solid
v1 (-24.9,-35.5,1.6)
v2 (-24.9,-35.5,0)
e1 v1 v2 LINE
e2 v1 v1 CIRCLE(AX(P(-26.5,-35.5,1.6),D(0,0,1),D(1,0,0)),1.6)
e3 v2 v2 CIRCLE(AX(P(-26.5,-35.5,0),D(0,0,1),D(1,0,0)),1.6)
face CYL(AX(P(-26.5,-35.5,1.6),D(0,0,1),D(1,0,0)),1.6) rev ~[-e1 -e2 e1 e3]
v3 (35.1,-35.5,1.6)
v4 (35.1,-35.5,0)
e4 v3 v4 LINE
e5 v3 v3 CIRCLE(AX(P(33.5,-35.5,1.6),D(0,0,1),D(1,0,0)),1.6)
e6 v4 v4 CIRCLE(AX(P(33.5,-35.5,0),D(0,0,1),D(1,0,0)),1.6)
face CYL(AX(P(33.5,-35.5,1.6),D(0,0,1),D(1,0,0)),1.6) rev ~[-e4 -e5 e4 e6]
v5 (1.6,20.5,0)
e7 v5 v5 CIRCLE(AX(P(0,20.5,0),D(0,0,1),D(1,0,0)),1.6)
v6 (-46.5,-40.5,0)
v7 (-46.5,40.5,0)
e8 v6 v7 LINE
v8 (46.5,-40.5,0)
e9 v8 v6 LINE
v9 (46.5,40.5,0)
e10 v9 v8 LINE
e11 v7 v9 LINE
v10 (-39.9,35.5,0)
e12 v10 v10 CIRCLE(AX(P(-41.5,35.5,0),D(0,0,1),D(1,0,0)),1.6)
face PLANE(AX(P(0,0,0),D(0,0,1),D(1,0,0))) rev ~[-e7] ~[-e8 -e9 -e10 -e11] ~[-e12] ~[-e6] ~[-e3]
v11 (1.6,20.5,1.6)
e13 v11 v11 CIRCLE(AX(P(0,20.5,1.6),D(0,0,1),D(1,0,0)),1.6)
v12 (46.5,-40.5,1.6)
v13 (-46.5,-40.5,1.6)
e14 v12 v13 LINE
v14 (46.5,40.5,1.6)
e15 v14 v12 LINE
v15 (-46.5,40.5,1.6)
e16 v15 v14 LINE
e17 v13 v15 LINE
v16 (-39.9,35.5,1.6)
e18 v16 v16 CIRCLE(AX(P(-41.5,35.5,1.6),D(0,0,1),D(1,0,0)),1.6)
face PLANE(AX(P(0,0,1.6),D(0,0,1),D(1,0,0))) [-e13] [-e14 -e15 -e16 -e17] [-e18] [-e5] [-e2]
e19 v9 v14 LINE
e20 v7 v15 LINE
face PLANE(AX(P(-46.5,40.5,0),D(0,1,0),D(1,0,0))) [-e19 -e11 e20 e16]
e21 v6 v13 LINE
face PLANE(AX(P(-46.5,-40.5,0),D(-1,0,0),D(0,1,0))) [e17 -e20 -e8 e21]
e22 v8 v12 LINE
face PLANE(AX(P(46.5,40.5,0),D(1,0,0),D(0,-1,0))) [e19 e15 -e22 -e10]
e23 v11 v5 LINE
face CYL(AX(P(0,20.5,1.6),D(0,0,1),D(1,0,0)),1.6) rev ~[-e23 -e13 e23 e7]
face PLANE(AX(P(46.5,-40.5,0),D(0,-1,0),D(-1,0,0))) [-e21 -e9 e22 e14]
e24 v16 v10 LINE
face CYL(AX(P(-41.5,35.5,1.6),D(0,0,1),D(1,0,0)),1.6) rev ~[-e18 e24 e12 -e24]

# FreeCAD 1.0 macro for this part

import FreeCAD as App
import Part
import Sketcher
from FreeCAD import Vector
Q = App.Units.Quantity

doc = App.newDocument("Part")
body = doc.addObject("PartDesign::Body", "Body")

sketch1 = body.newObject("Sketcher::SketchObject", "Sketch")
sketch1.AttachmentSupport = (doc.getObject("XY_Plane"), [""])
sketch1.MapMode = "FlatFace"
sketch1.addGeometry(Part.LineSegment(Vector(-46, -40, 0), Vector(46, -40, 0)), False)
sketch1.addGeometry(Part.LineSegment(Vector(46, -40, 0), Vector(46, 40, 0)), False)
sketch1.addGeometry(Part.LineSegment(Vector(46, 40, 0), Vector(-46, 40, 0)), False)
sketch1.addGeometry(Part.LineSegment(Vector(-46, 40, 0), Vector(-46, -40, 0)), False)
sketch1.addConstraint(Sketcher.Constraint("Coincident", 0, 2, 1, 1))
sketch1.addConstraint(Sketcher.Constraint("Coincident", 1, 2, 2, 1))
sketch1.addConstraint(Sketcher.Constraint("Coincident", 2, 2, 3, 1))
sketch1.addConstraint(Sketcher.Constraint("Coincident", 3, 2, 0, 1))
sketch1.addConstraint(Sketcher.Constraint("Horizontal", 0))
sketch1.addConstraint(Sketcher.Constraint("Vertical", 1))
sketch1.addConstraint(Sketcher.Constraint("Horizontal", 2))
sketch1.addConstraint(Sketcher.Constraint("Vertical", 3))
sketch1.addConstraint(Sketcher.Constraint("Symmetric", 0, 2, 2, 2, -1, 1))
sketch1.addConstraint(Sketcher.Constraint("DistanceX", 0, 1, 0, 2, Q("93 mm")))
sketch1.addConstraint(Sketcher.Constraint("DistanceY", 1, 1, 1, 2, Q("81 mm")))
pad1 = body.newObject("PartDesign::Pad", "Pad")
pad1.Profile = sketch1
pad1.Length = 1.6

sketch2 = body.newObject("Sketcher::SketchObject", "Sketch001")
sketch2.AttachmentSupport = (doc.getObject("XY_Plane"), [""])
sketch2.MapMode = "FlatFace"
sketch2.AttachmentOffset = App.Placement(Vector(0, 0, 1.6), App.Rotation())
sketch2.addGeometry(Part.Circle(Vector(-41.5, 35.5, 0), Vector(0, 0, 1), 1.6), False)
sketch2.addGeometry(Part.Circle(Vector(-26.5, -35.5, 0), Vector(0, 0, 1), 1.6), False)
sketch2.addGeometry(Part.Circle(Vector(33.5, -35.5, 0), Vector(0, 0, 1), 1.6), False)
sketch2.addGeometry(Part.Circle(Vector(0, 20.5, 0), Vector(0, 0, 1), 1.6), False)
sketch2.addConstraint(Sketcher.Constraint("Equal", 0, 1))
sketch2.addConstraint(Sketcher.Constraint("Equal", 1, 2))
sketch2.addConstraint(Sketcher.Constraint("Equal", 2, 3))
sketch2.addConstraint(Sketcher.Constraint("PointOnObject", 3, 3, -2))
sketch2.addConstraint(Sketcher.Constraint("Horizontal", 1, 3, 2, 3))
sketch2.addConstraint(Sketcher.Constraint("Diameter", 0, Q("3.2 mm")))
sketch2.addConstraint(Sketcher.Constraint("DistanceX", 0, 3, 1, 3, Q("15 mm")))
sketch2.addConstraint(Sketcher.Constraint("DistanceY", 1, 3, 0, 3, Q("71 mm")))
sketch2.addConstraint(Sketcher.Constraint("DistanceX", 1, 3, 2, 3, Q("60 mm")))
sketch2.addConstraint(Sketcher.Constraint("DistanceY", 3, 3, 0, 3, Q("15 mm")))
sketch2.addConstraint(Sketcher.Constraint("DistanceX", 0, 3, -1, 1, Q("41.5 mm")))
sketch2.addConstraint(Sketcher.Constraint("DistanceY", -1, 1, 0, 3, Q("35.5 mm")))
pocket1 = body.newObject("PartDesign::Pocket", "Pocket")
pocket1.Profile = sketch2
pocket1.Type = "ThroughAll"

doc.recompute()
